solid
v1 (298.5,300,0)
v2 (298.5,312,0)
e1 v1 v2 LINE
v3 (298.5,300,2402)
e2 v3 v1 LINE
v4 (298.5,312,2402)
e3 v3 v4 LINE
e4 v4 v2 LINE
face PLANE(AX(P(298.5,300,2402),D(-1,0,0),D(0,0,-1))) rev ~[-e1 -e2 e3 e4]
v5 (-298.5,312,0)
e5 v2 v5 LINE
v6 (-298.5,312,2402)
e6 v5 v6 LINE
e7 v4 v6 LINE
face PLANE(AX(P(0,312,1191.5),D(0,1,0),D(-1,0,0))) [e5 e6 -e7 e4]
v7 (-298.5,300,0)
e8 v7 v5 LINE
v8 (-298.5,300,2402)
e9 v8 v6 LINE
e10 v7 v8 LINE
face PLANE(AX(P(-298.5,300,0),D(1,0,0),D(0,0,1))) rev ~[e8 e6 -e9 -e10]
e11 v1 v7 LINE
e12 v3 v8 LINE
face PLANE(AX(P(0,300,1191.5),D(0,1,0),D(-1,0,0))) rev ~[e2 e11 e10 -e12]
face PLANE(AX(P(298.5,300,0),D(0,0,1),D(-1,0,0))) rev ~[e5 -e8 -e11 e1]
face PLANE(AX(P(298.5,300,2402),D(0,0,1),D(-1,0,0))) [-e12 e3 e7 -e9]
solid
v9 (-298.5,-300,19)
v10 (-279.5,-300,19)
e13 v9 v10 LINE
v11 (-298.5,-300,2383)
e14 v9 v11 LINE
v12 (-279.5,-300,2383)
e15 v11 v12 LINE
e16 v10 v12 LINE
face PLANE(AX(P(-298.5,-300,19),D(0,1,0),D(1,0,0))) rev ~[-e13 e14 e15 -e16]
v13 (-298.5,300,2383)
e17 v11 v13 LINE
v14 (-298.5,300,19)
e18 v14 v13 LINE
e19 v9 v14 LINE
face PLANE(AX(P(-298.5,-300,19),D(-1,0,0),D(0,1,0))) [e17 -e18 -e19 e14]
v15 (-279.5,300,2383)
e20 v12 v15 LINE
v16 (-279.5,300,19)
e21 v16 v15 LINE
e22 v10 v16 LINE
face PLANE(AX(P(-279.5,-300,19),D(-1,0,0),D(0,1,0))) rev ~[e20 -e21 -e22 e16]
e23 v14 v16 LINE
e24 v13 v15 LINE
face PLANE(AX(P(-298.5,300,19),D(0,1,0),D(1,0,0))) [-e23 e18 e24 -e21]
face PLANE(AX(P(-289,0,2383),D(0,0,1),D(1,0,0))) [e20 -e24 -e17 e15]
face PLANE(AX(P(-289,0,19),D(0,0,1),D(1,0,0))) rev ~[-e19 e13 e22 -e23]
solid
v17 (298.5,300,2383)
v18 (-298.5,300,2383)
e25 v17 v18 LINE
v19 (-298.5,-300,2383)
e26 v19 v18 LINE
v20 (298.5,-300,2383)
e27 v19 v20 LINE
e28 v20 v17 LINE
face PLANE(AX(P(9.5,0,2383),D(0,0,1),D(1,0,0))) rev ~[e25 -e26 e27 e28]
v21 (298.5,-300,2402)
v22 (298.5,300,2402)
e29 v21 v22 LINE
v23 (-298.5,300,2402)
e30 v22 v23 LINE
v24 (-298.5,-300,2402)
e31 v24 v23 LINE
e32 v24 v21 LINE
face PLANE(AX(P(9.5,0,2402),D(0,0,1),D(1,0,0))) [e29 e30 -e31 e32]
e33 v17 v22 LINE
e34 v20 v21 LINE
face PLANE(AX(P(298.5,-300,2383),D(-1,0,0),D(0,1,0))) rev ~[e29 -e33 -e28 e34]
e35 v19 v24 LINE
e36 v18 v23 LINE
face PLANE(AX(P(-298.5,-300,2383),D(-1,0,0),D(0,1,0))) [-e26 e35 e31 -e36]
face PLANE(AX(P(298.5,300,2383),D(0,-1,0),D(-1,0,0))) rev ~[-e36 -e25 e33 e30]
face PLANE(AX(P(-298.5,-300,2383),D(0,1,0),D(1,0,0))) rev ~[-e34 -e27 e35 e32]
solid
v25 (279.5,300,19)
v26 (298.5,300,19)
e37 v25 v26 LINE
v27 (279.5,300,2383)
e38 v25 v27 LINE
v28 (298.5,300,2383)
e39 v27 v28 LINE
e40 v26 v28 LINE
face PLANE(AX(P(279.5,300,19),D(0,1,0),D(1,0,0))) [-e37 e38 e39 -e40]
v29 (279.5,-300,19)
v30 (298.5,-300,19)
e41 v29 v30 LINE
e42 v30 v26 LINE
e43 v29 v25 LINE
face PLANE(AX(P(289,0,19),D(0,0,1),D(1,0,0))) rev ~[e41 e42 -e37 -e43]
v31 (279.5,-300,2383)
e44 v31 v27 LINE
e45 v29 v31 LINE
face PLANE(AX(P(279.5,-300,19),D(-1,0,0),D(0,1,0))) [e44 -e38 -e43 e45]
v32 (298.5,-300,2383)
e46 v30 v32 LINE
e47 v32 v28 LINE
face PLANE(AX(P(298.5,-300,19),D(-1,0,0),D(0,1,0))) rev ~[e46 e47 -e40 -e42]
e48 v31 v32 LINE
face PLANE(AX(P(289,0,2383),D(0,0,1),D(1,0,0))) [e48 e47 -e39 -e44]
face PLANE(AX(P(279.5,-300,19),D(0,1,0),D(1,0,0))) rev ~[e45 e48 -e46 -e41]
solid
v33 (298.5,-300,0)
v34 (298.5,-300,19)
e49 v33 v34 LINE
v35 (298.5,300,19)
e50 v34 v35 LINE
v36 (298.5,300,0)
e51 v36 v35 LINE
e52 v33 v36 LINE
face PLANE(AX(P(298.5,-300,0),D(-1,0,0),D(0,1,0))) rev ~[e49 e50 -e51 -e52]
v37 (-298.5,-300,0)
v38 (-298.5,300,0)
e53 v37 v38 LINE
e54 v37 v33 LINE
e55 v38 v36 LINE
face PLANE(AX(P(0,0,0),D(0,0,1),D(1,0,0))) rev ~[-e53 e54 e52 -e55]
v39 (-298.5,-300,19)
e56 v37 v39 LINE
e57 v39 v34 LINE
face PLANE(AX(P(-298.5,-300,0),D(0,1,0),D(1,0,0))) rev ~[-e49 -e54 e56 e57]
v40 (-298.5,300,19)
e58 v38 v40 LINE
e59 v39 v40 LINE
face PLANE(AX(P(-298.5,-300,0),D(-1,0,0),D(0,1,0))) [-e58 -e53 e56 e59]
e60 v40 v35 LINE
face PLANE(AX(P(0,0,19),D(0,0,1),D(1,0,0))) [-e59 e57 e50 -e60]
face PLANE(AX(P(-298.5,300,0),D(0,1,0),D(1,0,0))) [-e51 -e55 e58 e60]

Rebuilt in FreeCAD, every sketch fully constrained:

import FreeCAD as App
import Part
import Sketcher

doc = App.newDocument("Part")
body = doc.addObject("PartDesign::Body", "Body")

sketch1 = doc.addObject("Sketcher::SketchObject", "Sketch")
body.addObject(sketch1)
sketch1.AttachmentSupport = (doc.XY_Plane, [""])
sketch1.MapMode = "FlatFace"
sketch1.addGeometry(Part.LineSegment(App.Vector(-298, 300, 0), App.Vector(-298, -300, 0)), False)
sketch1.addGeometry(Part.LineSegment(App.Vector(-298, -300, 0), App.Vector(298, -300, 0)), False)
sketch1.addGeometry(Part.LineSegment(App.Vector(298, -300, 0), App.Vector(298, 300, 0)), False)
sketch1.addGeometry(Part.LineSegment(App.Vector(298, 300, 0), App.Vector(-298, 300, 0)), False)
sketch1.addConstraint(Sketcher.Constraint("Coincident", 0, 2, 1, 1))
sketch1.addConstraint(Sketcher.Constraint("Coincident", 1, 2, 2, 1))
sketch1.addConstraint(Sketcher.Constraint("Coincident", 2, 2, 3, 1))
sketch1.addConstraint(Sketcher.Constraint("Coincident", 3, 2, 0, 1))
sketch1.addConstraint(Sketcher.Constraint("Vertical", 0))
sketch1.addConstraint(Sketcher.Constraint("Horizontal", 1))
sketch1.addConstraint(Sketcher.Constraint("Vertical", 2))
sketch1.addConstraint(Sketcher.Constraint("Horizontal", 3))
sketch1.addConstraint(Sketcher.Constraint("Symmetric", 0, 2, 2, 2, -1, 1))
sketch1.addConstraint(Sketcher.Constraint("DistanceX", 1, 1, 1, 2, 597.0))
sketch1.addConstraint(Sketcher.Constraint("DistanceY", 0, 2, 0, 1, 600.0))
pad1 = doc.addObject("PartDesign::Pad", "Pad")
body.addObject(pad1)
pad1.Profile = sketch1
pad1.Length = 19
body2 = doc.addObject("PartDesign::Body", "Body001")

sketch2 = doc.addObject("Sketcher::SketchObject", "Sketch001")
body2.addObject(sketch2)
sketch2.AttachmentSupport = (doc.getObject("XY_Plane001"), [""])
sketch2.MapMode = "FlatFace"
sketch2.AttachmentOffset = App.Placement(App.Vector(0, 0, 19), App.Rotation())
sketch2.addGeometry(Part.LineSegment(App.Vector(-298, 300, 0), App.Vector(-298, -300, 0)), False)
sketch2.addGeometry(Part.LineSegment(App.Vector(-298, -300, 0), App.Vector(-280, -300, 0)), False)
sketch2.addGeometry(Part.LineSegment(App.Vector(-280, -300, 0), App.Vector(-280, 300, 0)), False)
sketch2.addGeometry(Part.LineSegment(App.Vector(-280, 300, 0), App.Vector(-298, 300, 0)), False)
sketch2.addConstraint(Sketcher.Constraint("Coincident", 0, 2, 1, 1))
sketch2.addConstraint(Sketcher.Constraint("Coincident", 1, 2, 2, 1))
sketch2.addConstraint(Sketcher.Constraint("Coincident", 2, 2, 3, 1))
sketch2.addConstraint(Sketcher.Constraint("Coincident", 3, 2, 0, 1))
sketch2.addConstraint(Sketcher.Constraint("Vertical", 0))
sketch2.addConstraint(Sketcher.Constraint("Horizontal", 1))
sketch2.addConstraint(Sketcher.Constraint("Vertical", 2))
sketch2.addConstraint(Sketcher.Constraint("Horizontal", 3))
sketch2.addConstraint(Sketcher.Constraint("DistanceX", 1, 1, 1, 2, 19.0))
sketch2.addConstraint(Sketcher.Constraint("DistanceY", 0, 2, 0, 1, 600.0))
sketch2.addConstraint(Sketcher.Constraint("DistanceY", 0, 2, -1, 1, 300.0))
sketch2.addConstraint(Sketcher.Constraint("DistanceX", 0, 2, -1, 1, 298.5))
pad2 = doc.addObject("PartDesign::Pad", "Pad001")
body2.addObject(pad2)
pad2.Profile = sketch2
pad2.Length = 2364
body3 = doc.addObject("PartDesign::Body", "Body002")

sketch3 = doc.addObject("Sketcher::SketchObject", "Sketch002")
body3.addObject(sketch3)
sketch3.AttachmentSupport = (doc.getObject("XY_Plane002"), [""])
sketch3.MapMode = "FlatFace"
sketch3.AttachmentOffset = App.Placement(App.Vector(0, 0, 19), App.Rotation())
sketch3.addGeometry(Part.LineSegment(App.Vector(280, 300, 0), App.Vector(280, -300, 0)), False)
sketch3.addGeometry(Part.LineSegment(App.Vector(280, -300, 0), App.Vector(298, -300, 0)), False)
sketch3.addGeometry(Part.LineSegment(App.Vector(298, -300, 0), App.Vector(298, 300, 0)), False)
sketch3.addGeometry(Part.LineSegment(App.Vector(298, 300, 0), App.Vector(280, 300, 0)), False)
sketch3.addConstraint(Sketcher.Constraint("Coincident", 0, 2, 1, 1))
sketch3.addConstraint(Sketcher.Constraint("Coincident", 1, 2, 2, 1))
sketch3.addConstraint(Sketcher.Constraint("Coincident", 2, 2, 3, 1))
sketch3.addConstraint(Sketcher.Constraint("Coincident", 3, 2, 0, 1))
sketch3.addConstraint(Sketcher.Constraint("Vertical", 0))
sketch3.addConstraint(Sketcher.Constraint("Horizontal", 1))
sketch3.addConstraint(Sketcher.Constraint("Vertical", 2))
sketch3.addConstraint(Sketcher.Constraint("Horizontal", 3))
sketch3.addConstraint(Sketcher.Constraint("DistanceX", 1, 1, 1, 2, 19.0))
sketch3.addConstraint(Sketcher.Constraint("DistanceY", 0, 2, 0, 1, 600.0))
sketch3.addConstraint(Sketcher.Constraint("DistanceY", 0, 2, -1, 1, 300.0))
sketch3.addConstraint(Sketcher.Constraint("DistanceX", -1, 1, 0, 2, 279.5))
pad3 = doc.addObject("PartDesign::Pad", "Pad002")
body3.addObject(pad3)
pad3.Profile = sketch3
pad3.Length = 2364
body4 = doc.addObject("PartDesign::Body", "Body003")

sketch4 = doc.addObject("Sketcher::SketchObject", "Sketch003")
body4.addObject(sketch4)
sketch4.AttachmentSupport = (doc.getObject("XY_Plane003"), [""])
sketch4.MapMode = "FlatFace"
sketch4.AttachmentOffset = App.Placement(App.Vector(0, 0, 2383), App.Rotation())
sketch4.addGeometry(Part.LineSegment(App.Vector(298, -300, 0), App.Vector(298, 300, 0)), False)
sketch4.addGeometry(Part.LineSegment(App.Vector(298, 300, 0), App.Vector(-298, 300, 0)), False)
sketch4.addGeometry(Part.LineSegment(App.Vector(-298, 300, 0), App.Vector(-298, -300, 0)), False)
sketch4.addGeometry(Part.LineSegment(App.Vector(-298, -300, 0), App.Vector(298, -300, 0)), False)
sketch4.addConstraint(Sketcher.Constraint("Coincident", 0, 2, 1, 1))
sketch4.addConstraint(Sketcher.Constraint("Coincident", 1, 2, 2, 1))
sketch4.addConstraint(Sketcher.Constraint("Coincident", 2, 2, 3, 1))
sketch4.addConstraint(Sketcher.Constraint("Coincident", 3, 2, 0, 1))
sketch4.addConstraint(Sketcher.Constraint("Vertical", 0))
sketch4.addConstraint(Sketcher.Constraint("Horizontal", 1))
sketch4.addConstraint(Sketcher.Constraint("Vertical", 2))
sketch4.addConstraint(Sketcher.Constraint("Horizontal", 3))
sketch4.addConstraint(Sketcher.Constraint("Symmetric", 0, 2, 2, 2, -1, 1))
sketch4.addConstraint(Sketcher.Constraint("DistanceX", 1, 2, 1, 1, 597.0))
sketch4.addConstraint(Sketcher.Constraint("DistanceY", 0, 1, 0, 2, 600.0))
pad4 = doc.addObject("PartDesign::Pad", "Pad003")
body4.addObject(pad4)
pad4.Profile = sketch4
pad4.Length = 19
body5 = doc.addObject("PartDesign::Body", "Body004")

sketch5 = doc.addObject("Sketcher::SketchObject", "Sketch004")
body5.addObject(sketch5)
sketch5.AttachmentSupport = (doc.getObject("XZ_Plane004"), [""])
sketch5.MapMode = "FlatFace"
sketch5.AttachmentOffset = App.Placement(App.Vector(0, 0, -300), App.Rotation())
sketch5.addGeometry(Part.LineSegment(App.Vector(298, 0, 0), App.Vector(-298, 0, 0)), False)
sketch5.addGeometry(Part.LineSegment(App.Vector(-298, 0, 0), App.Vector(-298, 2402, 0)), False)
sketch5.addGeometry(Part.LineSegment(App.Vector(-298, 2402, 0), App.Vector(298, 2402, 0)), False)
sketch5.addGeometry(Part.LineSegment(App.Vector(298, 2402, 0), App.Vector(298, 0, 0)), False)
sketch5.addConstraint(Sketcher.Constraint("Coincident", 0, 2, 1, 1))
sketch5.addConstraint(Sketcher.Constraint("Coincident", 1, 2, 2, 1))
sketch5.addConstraint(Sketcher.Constraint("Coincident", 2, 2, 3, 1))
sketch5.addConstraint(Sketcher.Constraint("Coincident", 3, 2, 0, 1))
sketch5.addConstraint(Sketcher.Constraint("Horizontal", 0))
sketch5.addConstraint(Sketcher.Constraint("Vertical", 1))
sketch5.addConstraint(Sketcher.Constraint("Horizontal", 2))
sketch5.addConstraint(Sketcher.Constraint("Vertical", 3))
sketch5.addConstraint(Sketcher.Constraint("Symmetric", 0, 2, 3, 2, -1, 1))
sketch5.addConstraint(Sketcher.Constraint("DistanceX", 0, 2, 0, 1, 597.0))
sketch5.addConstraint(Sketcher.Constraint("DistanceY", 1, 1, 1, 2, 2402.0))
pad5 = doc.addObject("PartDesign::Pad", "Pad004")
body5.addObject(pad5)
pad5.Profile = sketch5
pad5.Length = 12
pad5.Reversed = True

doc.recompute()
